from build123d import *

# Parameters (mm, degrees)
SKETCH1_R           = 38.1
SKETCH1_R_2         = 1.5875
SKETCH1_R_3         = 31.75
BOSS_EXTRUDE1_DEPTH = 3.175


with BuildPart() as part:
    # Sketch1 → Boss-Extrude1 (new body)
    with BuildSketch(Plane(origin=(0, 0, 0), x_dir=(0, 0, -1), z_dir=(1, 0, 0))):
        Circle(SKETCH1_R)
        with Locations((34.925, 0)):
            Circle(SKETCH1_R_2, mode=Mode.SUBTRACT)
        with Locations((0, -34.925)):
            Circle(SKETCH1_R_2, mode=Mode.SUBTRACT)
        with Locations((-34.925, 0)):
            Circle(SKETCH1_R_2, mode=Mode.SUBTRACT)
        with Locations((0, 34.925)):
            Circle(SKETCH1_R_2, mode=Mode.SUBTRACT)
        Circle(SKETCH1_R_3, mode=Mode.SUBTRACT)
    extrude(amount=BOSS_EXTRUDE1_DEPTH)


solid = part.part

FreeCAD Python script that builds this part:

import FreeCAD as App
import Part
import Sketcher
from FreeCAD import Vector
Q = App.Units.Quantity

doc = App.newDocument("Part")
body = doc.addObject("PartDesign::Body", "Body")

# Sketch on YZ plane
sketch1 = body.newObject("Sketcher::SketchObject", "Sketch")
sketch1.AttachmentSupport = (doc.getObject("YZ_Plane"), [""])
sketch1.MapMode = "FlatFace"
sketch1.addGeometry([
    Part.Circle(Vector(0, 0, 0), Vector(0, 0, 1), 38.1),  # 0
    Part.Circle(Vector(-34.9, 0, 0), Vector(0, 0, 1), 1.6),  # 1
    Part.Circle(Vector(0, 34.9, 0), Vector(0, 0, 1), 1.6),  # 2
    Part.Circle(Vector(0, 0, 0), Vector(0, 0, 1), 31.8),  # 3
    Part.Circle(Vector(0, -34.9, 0), Vector(0, 0, 1), 1.6),  # 4
    Part.Circle(Vector(34.9, 0, 0), Vector(0, 0, 1), 1.6),  # 5
], False)
sketch1.addConstraint([
    Sketcher.Constraint("Coincident", 0, 3, -1, 1),
    Sketcher.Constraint("Coincident", 3, 3, -1, 1),
    Sketcher.Constraint("Equal", 1, 2),
    Sketcher.Constraint("Equal", 2, 4),
    Sketcher.Constraint("Equal", 4, 5),
    Sketcher.Constraint("Symmetric", 2, 3, 4, 3, -1, 1),
    Sketcher.Constraint("Symmetric", 1, 3, 5, 3, -1, 1),
    Sketcher.Constraint("PointOnObject", 1, 3, -1),
    Sketcher.Constraint("PointOnObject", 2, 3, -2),
    Sketcher.Constraint("Diameter", 0, Q("3 in")),
    Sketcher.Constraint("Diameter", 3, Q("2.5 in")),
    Sketcher.Constraint("Diameter", 1, Q("0.125 in")),
    Sketcher.Constraint("DistanceY", 4, 3, 2, 3, Q("2.75 in")),
    Sketcher.Constraint("DistanceX", 1, 3, 5, 3, Q("2.75 in")),
])
pad1 = body.newObject("PartDesign::Pad", "Pad")
pad1.Profile = sketch1
pad1.Length = Q("0.125 in")

doc.recompute()
